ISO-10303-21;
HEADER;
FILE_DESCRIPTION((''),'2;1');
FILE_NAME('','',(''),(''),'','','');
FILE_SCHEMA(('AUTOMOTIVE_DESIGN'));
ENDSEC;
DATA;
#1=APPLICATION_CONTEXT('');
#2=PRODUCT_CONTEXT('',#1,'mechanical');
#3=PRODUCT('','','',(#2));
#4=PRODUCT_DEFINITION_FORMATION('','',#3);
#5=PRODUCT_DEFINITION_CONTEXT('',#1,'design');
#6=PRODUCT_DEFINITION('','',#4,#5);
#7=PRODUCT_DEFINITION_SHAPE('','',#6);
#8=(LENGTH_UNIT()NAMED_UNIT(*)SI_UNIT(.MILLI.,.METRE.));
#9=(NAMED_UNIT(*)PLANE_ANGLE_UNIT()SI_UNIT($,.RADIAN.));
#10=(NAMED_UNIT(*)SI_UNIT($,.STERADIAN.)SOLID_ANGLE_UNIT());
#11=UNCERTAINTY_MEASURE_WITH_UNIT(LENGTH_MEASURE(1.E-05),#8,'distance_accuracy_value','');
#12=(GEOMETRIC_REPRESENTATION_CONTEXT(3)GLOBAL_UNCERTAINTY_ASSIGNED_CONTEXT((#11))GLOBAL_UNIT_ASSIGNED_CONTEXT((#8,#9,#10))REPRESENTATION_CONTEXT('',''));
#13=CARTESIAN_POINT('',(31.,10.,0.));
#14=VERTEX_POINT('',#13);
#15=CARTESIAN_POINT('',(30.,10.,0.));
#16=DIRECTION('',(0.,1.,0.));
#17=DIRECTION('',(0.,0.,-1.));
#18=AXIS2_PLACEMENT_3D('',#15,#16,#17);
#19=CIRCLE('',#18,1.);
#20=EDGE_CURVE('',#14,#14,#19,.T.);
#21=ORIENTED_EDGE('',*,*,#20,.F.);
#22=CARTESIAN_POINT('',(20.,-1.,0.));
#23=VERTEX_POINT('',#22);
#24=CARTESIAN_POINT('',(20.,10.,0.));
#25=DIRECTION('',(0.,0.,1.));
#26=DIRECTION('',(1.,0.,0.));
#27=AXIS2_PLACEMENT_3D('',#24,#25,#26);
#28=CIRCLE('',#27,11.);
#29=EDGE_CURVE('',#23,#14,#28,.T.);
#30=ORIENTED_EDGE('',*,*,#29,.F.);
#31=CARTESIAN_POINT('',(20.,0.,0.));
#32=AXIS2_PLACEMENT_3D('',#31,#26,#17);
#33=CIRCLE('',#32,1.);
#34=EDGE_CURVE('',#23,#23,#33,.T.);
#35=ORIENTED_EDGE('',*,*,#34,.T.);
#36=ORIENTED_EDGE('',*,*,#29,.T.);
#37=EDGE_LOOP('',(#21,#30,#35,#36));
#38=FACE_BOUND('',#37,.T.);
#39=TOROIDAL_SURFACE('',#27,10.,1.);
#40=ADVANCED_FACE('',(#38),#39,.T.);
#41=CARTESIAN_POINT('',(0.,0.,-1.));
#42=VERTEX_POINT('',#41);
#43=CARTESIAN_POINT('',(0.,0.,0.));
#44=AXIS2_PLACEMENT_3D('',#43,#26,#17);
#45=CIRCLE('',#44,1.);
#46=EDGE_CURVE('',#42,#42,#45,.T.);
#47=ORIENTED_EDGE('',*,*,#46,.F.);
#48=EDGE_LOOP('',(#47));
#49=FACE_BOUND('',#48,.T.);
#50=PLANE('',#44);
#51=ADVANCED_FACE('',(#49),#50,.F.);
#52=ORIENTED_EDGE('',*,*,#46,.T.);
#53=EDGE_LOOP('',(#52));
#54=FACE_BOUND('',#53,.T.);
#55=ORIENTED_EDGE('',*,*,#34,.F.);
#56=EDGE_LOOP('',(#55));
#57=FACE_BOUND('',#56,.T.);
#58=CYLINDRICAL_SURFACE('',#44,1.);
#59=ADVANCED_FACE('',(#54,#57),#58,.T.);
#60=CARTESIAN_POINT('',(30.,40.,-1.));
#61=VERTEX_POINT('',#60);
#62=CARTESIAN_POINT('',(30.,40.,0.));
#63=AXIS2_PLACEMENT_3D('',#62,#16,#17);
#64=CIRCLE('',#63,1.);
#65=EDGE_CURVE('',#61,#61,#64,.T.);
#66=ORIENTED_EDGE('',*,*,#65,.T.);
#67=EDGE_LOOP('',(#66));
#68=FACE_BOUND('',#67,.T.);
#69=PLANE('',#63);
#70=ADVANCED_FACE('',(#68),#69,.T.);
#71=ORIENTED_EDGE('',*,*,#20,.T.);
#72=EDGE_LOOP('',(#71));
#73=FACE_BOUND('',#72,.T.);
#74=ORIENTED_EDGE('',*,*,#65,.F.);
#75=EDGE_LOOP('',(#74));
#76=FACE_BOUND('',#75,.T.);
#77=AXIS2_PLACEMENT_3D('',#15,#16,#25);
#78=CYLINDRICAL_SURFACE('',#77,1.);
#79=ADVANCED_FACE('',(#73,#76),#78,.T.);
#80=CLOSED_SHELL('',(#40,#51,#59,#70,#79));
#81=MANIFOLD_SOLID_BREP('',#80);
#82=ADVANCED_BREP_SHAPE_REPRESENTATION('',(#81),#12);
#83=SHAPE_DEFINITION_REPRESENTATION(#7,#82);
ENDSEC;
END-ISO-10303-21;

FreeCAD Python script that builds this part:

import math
import FreeCAD as App
import Part
import Sketcher

V = App.Vector

doc = App.newDocument("Part")
body = doc.addObject("PartDesign::Body", "Body")

# Sketch on YZ plane
sketch1 = doc.addObject("Sketcher::SketchObject", "Sketch")
body.addObject(sketch1)
sketch1.AttachmentSupport = (doc.YZ_Plane, [""])
sketch1.MapMode = "FlatFace"
sketch1.addGeometry(Part.Circle(V(0, 0, 0), V(0, 0, 1), 1), False)
sketch1.addConstraint(Sketcher.Constraint("Coincident", 0, 3, -1, 1))
sketch1.addConstraint(Sketcher.Constraint("Diameter", 0, 2.0))

# Sketch on XY plane
sketch2 = doc.addObject("Sketcher::SketchObject", "Sketch001")
body.addObject(sketch2)
sketch2.AttachmentSupport = (doc.XY_Plane, [""])
sketch2.MapMode = "FlatFace"
sketch2.addGeometry(Part.LineSegment(V(0, 0, 0), V(20, 0, 0)), False)
sketch2.addGeometry(Part.ArcOfCircle(Part.Circle(V(20, 10, 0), V(0, 0, 1), 10), math.radians(-90), math.radians(0)), False)
sketch2.addGeometry(Part.LineSegment(V(30, 10, 0), V(30, 40, 0)), False)
sketch2.addConstraint(Sketcher.Constraint("Tangent", 0, 2, 1, 1))
sketch2.addConstraint(Sketcher.Constraint("Tangent", 1, 2, 2, 1))
sketch2.addConstraint(Sketcher.Constraint("Horizontal", 0))
sketch2.addConstraint(Sketcher.Constraint("Vertical", 2))
sketch2.addConstraint(Sketcher.Constraint("Coincident", 0, 1, -1, 1))
sketch2.addConstraint(Sketcher.Constraint("Radius", 1, 10.0))
sketch2.addConstraint(Sketcher.Constraint("DistanceX", 0, 1, 0, 2, 20.0))
sketch2.addConstraint(Sketcher.Constraint("DistanceY", 2, 1, 2, 2, 30.0))
doc.recompute()

additivepipe = doc.addObject("PartDesign::AdditivePipe", "AdditivePipe")
body.addObject(additivepipe)
additivepipe.Profile = sketch1
additivepipe.Spine = (sketch2, ["Edge1", "Edge2", "Edge3"])

doc.recompute()
